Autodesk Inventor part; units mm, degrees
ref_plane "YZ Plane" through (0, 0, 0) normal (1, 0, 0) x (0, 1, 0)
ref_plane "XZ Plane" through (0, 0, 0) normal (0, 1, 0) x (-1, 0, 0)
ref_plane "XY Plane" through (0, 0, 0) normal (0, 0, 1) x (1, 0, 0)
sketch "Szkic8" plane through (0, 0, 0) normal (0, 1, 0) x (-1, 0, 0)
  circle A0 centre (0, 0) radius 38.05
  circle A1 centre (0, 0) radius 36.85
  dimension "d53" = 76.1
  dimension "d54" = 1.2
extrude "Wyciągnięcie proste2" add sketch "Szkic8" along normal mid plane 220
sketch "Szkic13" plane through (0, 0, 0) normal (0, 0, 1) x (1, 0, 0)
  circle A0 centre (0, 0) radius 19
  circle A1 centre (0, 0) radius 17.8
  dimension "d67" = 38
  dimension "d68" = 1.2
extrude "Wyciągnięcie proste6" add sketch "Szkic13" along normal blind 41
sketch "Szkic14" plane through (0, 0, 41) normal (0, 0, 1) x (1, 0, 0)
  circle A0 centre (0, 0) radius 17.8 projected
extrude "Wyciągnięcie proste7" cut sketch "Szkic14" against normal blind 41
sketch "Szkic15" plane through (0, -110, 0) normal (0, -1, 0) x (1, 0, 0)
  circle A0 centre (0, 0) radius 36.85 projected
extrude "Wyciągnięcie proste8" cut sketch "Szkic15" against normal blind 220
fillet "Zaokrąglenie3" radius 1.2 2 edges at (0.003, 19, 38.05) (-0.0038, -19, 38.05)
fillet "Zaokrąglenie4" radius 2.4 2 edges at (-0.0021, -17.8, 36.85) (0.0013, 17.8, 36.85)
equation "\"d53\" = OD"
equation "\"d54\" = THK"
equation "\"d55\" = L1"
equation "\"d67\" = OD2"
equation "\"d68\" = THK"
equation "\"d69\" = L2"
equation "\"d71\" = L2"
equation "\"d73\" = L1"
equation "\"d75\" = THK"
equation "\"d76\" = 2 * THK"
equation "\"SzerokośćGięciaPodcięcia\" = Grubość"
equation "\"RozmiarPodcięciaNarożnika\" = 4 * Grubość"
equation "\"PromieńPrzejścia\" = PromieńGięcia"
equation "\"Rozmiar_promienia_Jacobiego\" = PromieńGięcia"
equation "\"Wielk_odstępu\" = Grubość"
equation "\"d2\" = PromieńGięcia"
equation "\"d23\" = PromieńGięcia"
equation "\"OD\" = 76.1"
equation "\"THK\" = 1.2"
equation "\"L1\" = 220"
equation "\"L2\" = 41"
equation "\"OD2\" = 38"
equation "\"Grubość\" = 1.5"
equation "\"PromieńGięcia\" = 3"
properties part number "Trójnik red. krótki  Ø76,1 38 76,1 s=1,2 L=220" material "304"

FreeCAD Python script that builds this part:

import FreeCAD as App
import Part
import Sketcher
from FreeCAD import Vector


def edges_at(feature, points):
    """Names of the edges that pass closest to the given points."""
    edges = feature.Shape.Edges
    near = lambda p: min(range(len(edges)), key=lambda i: edges[i].distToShape(Part.Vertex(*p))[0])
    return sorted({f"Edge{near(p) + 1}" for p in points})

doc = App.newDocument("Part")
params = doc.addObject("Spreadsheet::Sheet", "Params")
for row, (alias, value) in enumerate([
    ("sketch1_diameter", "76.1 mm"),
    ("sketch1_diameter2", "73.7 mm"),
    ("pad1_length", "220 mm"),
    ("sketch2_diameter", "38 mm"),
    ("sketch2_diameter2", "35.6 mm"),
    ("pad2_length", "41 mm"),
    ("sketch3_diameter", "35.6 mm"),
    ("pocket1_length", "41 mm"),
    ("sketch4_diameter", "73.7 mm"),
    ("pocket2_length", "220 mm"),
    ("fillet_radius", "1.2 mm"),
    ("fillet2_radius", "2.4 mm"),
], start=1):
    params.set(f"A{row}", alias)
    params.set(f"B{row}", "=" + value)
    params.setAlias(f"B{row}", alias)

body = doc.addObject("PartDesign::Body", "Body")

sketch1 = doc.addObject("Sketcher::SketchObject", "Sketch")
body.addObject(sketch1)
sketch1.AttachmentSupport = (doc.XZ_Plane, [""])
sketch1.MapMode = "FlatFace"
sketch1.addGeometry(Part.Circle(Vector(0, 0, 0), Vector(0, 0, 1), 38.05), False)
sketch1.addGeometry(Part.Circle(Vector(0, 0, 0), Vector(0, 0, 1), 36.85), False)
sketch1.addConstraint(Sketcher.Constraint("Coincident", 0, 3, -1, 1))
sketch1.addConstraint(Sketcher.Constraint("Coincident", 1, 3, -1, 1))
sketch1.addConstraint(Sketcher.Constraint("Diameter", 0, 76.1))
sketch1.addConstraint(Sketcher.Constraint("Diameter", 1, 73.7))
sketch1.setExpression("Constraints[2]", "Params.sketch1_diameter")
sketch1.setExpression("Constraints[3]", "Params.sketch1_diameter2")
pad1 = doc.addObject("PartDesign::Pad", "Pad")
body.addObject(pad1)
pad1.Profile = sketch1
pad1.setExpression("Length", "Params.pad1_length")
pad1.Midplane = True

sketch2 = doc.addObject("Sketcher::SketchObject", "Sketch001")
body.addObject(sketch2)
sketch2.AttachmentSupport = (doc.XY_Plane, [""])
sketch2.MapMode = "FlatFace"
sketch2.addGeometry(Part.Circle(Vector(0, 0, 0), Vector(0, 0, 1), 19), False)
sketch2.addGeometry(Part.Circle(Vector(0, 0, 0), Vector(0, 0, 1), 17.8), False)
sketch2.addConstraint(Sketcher.Constraint("Coincident", 0, 3, -1, 1))
sketch2.addConstraint(Sketcher.Constraint("Coincident", 1, 3, -1, 1))
sketch2.addConstraint(Sketcher.Constraint("Diameter", 0, 38.0))
sketch2.addConstraint(Sketcher.Constraint("Diameter", 1, 35.6))
sketch2.setExpression("Constraints[2]", "Params.sketch2_diameter")
sketch2.setExpression("Constraints[3]", "Params.sketch2_diameter2")
pad2 = doc.addObject("PartDesign::Pad", "Pad001")
body.addObject(pad2)
pad2.Profile = sketch2
pad2.setExpression("Length", "Params.pad2_length")

sketch3 = doc.addObject("Sketcher::SketchObject", "Sketch002")
body.addObject(sketch3)
sketch3.AttachmentSupport = (doc.XY_Plane, [""])
sketch3.MapMode = "FlatFace"
sketch3.AttachmentOffset = App.Placement(Vector(0, 0, 41), App.Rotation())
sketch3.addGeometry(Part.Circle(Vector(0, 0, 0), Vector(0, 0, 1), 17.8), False)
sketch3.addConstraint(Sketcher.Constraint("Coincident", 0, 3, -1, 1))
sketch3.addConstraint(Sketcher.Constraint("Diameter", 0, 35.6))
sketch3.setExpression("Constraints[1]", "Params.sketch3_diameter")
pocket1 = doc.addObject("PartDesign::Pocket", "Pocket")
body.addObject(pocket1)
pocket1.Profile = sketch3
pocket1.setExpression("Length", "Params.pocket1_length")

sketch4 = doc.addObject("Sketcher::SketchObject", "Sketch003")
body.addObject(sketch4)
sketch4.AttachmentSupport = (doc.XZ_Plane, [""])
sketch4.MapMode = "FlatFace"
sketch4.AttachmentOffset = App.Placement(Vector(0, 0, 110), App.Rotation())
sketch4.addGeometry(Part.Circle(Vector(0, 0, 0), Vector(0, 0, 1), 36.85), False)
sketch4.addConstraint(Sketcher.Constraint("Coincident", 0, 3, -1, 1))
sketch4.addConstraint(Sketcher.Constraint("Diameter", 0, 73.7))
sketch4.setExpression("Constraints[1]", "Params.sketch4_diameter")
pocket2 = doc.addObject("PartDesign::Pocket", "Pocket001")
body.addObject(pocket2)
pocket2.Profile = sketch4
pocket2.setExpression("Length", "Params.pocket2_length")
doc.recompute()

fillet = doc.addObject("PartDesign::Fillet", "Fillet")
body.addObject(fillet)
fillet.Base = (pocket2, edges_at(pocket2, [(0.003, 19, 38.05), (-0.004, -19, 38.05)]))
fillet.setExpression("Radius", "Params.fillet_radius")
doc.recompute()

fillet2 = doc.addObject("PartDesign::Fillet", "Fillet001")
body.addObject(fillet2)
fillet2.Base = (fillet, edges_at(fillet, [(-0.002, -17.8, 36.85), (0.001, 17.8, 36.85)]))
fillet2.setExpression("Radius", "Params.fillet2_radius")

doc.recompute()
